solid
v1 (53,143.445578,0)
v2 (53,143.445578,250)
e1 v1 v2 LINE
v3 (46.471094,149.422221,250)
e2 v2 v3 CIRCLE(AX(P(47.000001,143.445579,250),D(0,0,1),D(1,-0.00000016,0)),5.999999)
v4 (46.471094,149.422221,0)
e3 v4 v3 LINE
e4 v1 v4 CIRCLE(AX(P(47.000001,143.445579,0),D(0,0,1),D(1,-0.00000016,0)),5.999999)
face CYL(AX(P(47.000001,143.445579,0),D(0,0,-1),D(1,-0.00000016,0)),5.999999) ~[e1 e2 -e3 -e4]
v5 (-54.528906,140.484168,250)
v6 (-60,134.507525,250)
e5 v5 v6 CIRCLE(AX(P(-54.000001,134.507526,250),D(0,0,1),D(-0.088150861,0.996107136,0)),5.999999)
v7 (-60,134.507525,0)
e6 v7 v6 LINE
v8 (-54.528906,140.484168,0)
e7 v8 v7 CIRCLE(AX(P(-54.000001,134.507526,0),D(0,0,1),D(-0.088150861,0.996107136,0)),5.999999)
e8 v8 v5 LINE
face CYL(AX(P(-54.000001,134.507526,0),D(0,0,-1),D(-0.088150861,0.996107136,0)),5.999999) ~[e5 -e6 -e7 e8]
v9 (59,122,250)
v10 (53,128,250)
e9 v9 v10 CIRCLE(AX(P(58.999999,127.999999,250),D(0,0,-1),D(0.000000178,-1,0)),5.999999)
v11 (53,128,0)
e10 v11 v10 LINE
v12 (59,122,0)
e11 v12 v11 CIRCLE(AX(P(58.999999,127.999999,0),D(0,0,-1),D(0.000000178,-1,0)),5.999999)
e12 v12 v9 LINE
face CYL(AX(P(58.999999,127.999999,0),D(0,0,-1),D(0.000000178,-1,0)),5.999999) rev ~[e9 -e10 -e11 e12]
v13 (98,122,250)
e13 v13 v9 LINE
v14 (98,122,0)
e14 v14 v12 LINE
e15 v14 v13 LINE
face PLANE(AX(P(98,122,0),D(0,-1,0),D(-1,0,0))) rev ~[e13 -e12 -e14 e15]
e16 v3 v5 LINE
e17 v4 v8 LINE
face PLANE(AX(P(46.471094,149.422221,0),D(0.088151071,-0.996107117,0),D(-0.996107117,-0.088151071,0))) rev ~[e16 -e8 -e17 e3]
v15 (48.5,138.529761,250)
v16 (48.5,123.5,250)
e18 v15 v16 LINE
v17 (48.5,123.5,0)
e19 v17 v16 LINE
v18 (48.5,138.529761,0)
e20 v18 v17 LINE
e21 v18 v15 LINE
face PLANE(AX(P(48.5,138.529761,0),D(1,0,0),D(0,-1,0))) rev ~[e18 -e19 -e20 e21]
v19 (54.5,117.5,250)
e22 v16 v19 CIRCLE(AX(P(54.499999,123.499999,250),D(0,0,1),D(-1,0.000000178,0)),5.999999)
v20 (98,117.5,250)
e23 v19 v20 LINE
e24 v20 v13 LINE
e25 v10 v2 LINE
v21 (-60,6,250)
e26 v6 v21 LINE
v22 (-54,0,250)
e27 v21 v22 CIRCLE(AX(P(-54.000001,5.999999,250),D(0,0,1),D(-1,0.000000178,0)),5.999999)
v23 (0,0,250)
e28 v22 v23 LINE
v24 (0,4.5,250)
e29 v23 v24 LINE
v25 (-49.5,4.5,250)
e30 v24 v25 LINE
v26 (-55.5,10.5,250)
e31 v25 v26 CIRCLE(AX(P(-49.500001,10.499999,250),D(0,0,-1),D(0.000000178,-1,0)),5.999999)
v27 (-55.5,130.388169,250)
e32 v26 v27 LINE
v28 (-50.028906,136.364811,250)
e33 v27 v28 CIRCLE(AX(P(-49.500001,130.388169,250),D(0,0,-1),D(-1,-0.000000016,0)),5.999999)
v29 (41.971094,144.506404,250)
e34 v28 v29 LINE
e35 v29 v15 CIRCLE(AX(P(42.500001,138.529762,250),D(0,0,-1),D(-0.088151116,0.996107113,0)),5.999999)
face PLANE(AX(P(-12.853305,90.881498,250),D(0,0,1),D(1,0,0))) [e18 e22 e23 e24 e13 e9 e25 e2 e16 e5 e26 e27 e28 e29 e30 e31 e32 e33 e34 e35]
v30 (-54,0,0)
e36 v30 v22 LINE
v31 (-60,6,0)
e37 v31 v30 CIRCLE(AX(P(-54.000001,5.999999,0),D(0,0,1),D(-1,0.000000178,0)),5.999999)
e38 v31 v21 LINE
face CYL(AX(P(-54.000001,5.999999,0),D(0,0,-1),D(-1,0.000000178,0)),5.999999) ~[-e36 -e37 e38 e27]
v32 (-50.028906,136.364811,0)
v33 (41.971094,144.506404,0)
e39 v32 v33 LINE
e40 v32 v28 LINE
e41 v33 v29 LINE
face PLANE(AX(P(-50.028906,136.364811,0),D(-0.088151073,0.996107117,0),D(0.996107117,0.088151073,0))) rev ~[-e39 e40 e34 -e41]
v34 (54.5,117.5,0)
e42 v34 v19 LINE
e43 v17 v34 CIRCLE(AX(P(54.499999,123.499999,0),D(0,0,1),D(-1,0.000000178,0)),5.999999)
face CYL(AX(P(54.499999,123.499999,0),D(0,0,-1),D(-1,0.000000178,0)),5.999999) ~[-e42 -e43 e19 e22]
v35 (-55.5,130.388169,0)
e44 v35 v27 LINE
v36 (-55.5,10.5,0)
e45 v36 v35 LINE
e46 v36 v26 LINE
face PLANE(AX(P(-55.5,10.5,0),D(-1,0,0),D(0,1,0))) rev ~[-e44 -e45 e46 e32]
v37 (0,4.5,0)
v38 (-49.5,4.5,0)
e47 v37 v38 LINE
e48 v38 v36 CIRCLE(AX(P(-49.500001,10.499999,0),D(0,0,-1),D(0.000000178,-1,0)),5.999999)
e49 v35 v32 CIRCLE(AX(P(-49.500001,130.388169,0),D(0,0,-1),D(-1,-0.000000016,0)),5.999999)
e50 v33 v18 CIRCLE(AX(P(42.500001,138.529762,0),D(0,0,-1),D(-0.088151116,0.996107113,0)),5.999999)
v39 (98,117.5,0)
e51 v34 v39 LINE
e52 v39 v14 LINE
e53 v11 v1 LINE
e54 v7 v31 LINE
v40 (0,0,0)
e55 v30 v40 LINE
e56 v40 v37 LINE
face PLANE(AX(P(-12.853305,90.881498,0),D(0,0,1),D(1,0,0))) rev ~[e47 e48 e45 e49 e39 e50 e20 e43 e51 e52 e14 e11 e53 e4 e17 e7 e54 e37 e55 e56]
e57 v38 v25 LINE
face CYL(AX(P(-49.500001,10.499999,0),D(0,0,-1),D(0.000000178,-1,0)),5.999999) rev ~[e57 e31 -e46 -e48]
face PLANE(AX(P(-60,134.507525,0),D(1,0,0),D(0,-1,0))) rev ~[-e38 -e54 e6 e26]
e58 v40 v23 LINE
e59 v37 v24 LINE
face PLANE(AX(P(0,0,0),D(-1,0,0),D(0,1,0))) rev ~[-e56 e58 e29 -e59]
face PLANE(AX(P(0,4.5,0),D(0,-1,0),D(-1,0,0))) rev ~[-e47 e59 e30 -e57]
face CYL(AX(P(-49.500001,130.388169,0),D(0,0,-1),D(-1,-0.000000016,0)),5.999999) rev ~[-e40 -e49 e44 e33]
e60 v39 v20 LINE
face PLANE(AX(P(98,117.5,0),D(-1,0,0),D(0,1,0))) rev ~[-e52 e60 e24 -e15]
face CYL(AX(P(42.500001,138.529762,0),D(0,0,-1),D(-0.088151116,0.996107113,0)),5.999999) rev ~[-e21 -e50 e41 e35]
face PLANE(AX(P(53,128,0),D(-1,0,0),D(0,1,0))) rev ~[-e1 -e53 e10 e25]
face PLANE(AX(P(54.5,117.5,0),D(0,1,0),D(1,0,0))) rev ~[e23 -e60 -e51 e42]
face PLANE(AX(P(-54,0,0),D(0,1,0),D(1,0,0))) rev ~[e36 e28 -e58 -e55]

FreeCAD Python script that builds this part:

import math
import FreeCAD as App
import Part
import Sketcher
Q = App.Units.Quantity

doc = App.newDocument("Part")
body = doc.addObject("PartDesign::Body", "Body")

# Sketch on XY plane
sketch1 = doc.addObject("Sketcher::SketchObject", "Sketch")
body.addObject(sketch1)
sketch1.AttachmentSupport = (doc.XY_Plane, [""])
sketch1.MapMode = "FlatFace"
sketch1.addGeometry(Part.LineSegment(App.Vector(-54, 0, 0), App.Vector(0, 0, 0)), False)
sketch1.addGeometry(Part.LineSegment(App.Vector(0, 0, 0), App.Vector(0, 4.5, 0)), False)
sketch1.addGeometry(Part.LineSegment(App.Vector(0, 4.5, 0), App.Vector(-49.5, 4.5, 0)), False)
sketch1.addGeometry(Part.ArcOfCircle(Part.Circle(App.Vector(-49.5, 10.5, 0), App.Vector(0, 0, 1), 6), math.radians(180), math.radians(270)), False)
sketch1.addGeometry(Part.LineSegment(App.Vector(-55.5, 10.5, 0), App.Vector(-55.5, 130.4, 0)), False)
sketch1.addGeometry(Part.ArcOfCircle(Part.Circle(App.Vector(-49.5, 130.4, 0), App.Vector(0, 0, 1), 6), math.radians(95), math.radians(180)), False)
sketch1.addGeometry(Part.LineSegment(App.Vector(-50, 136.4, 0), App.Vector(42, 144.5, 0)), False)
sketch1.addGeometry(Part.ArcOfCircle(Part.Circle(App.Vector(42.5, 138.5, 0), App.Vector(0, 0, 1), 6), math.radians(0), math.radians(95)), False)
sketch1.addGeometry(Part.LineSegment(App.Vector(48.5, 138.5, 0), App.Vector(48.5, 123.5, 0)), False)
sketch1.addGeometry(Part.ArcOfCircle(Part.Circle(App.Vector(54.5, 123.5, 0), App.Vector(0, 0, 1), 6), math.radians(180), math.radians(270)), False)
sketch1.addGeometry(Part.LineSegment(App.Vector(54.5, 117.5, 0), App.Vector(98, 117.5, 0)), False)
sketch1.addGeometry(Part.LineSegment(App.Vector(98, 117.5, 0), App.Vector(98, 122, 0)), False)
sketch1.addGeometry(Part.LineSegment(App.Vector(98, 122, 0), App.Vector(59, 122, 0)), False)
sketch1.addGeometry(Part.ArcOfCircle(Part.Circle(App.Vector(59, 128, 0), App.Vector(0, 0, 1), 6), math.radians(180), math.radians(270)), False)
sketch1.addGeometry(Part.LineSegment(App.Vector(53, 128, 0), App.Vector(53, 143.4, 0)), False)
sketch1.addGeometry(Part.ArcOfCircle(Part.Circle(App.Vector(47, 143.4, 0), App.Vector(0, 0, 1), 6), math.radians(0), math.radians(95)), False)
sketch1.addGeometry(Part.LineSegment(App.Vector(46.5, 149.4, 0), App.Vector(-54.5, 140.5, 0)), False)
sketch1.addGeometry(Part.ArcOfCircle(Part.Circle(App.Vector(-54, 134.5, 0), App.Vector(0, 0, 1), 6), math.radians(95), math.radians(180)), False)
sketch1.addGeometry(Part.LineSegment(App.Vector(-60, 134.5, 0), App.Vector(-60, 6, 0)), False)
sketch1.addGeometry(Part.ArcOfCircle(Part.Circle(App.Vector(-54, 6, 0), App.Vector(0, 0, 1), 6), math.radians(180), math.radians(270)), False)
sketch1.addConstraint(Sketcher.Constraint("Coincident", 0, 2, 1, 1))
sketch1.addConstraint(Sketcher.Constraint("Coincident", 1, 2, 2, 1))
sketch1.addConstraint(Sketcher.Constraint("Tangent", 2, 2, 3, 2))
sketch1.addConstraint(Sketcher.Constraint("Tangent", 3, 1, 4, 1))
sketch1.addConstraint(Sketcher.Constraint("Tangent", 4, 2, 5, 2))
sketch1.addConstraint(Sketcher.Constraint("Tangent", 5, 1, 6, 1))
sketch1.addConstraint(Sketcher.Constraint("Tangent", 6, 2, 7, 2))
sketch1.addConstraint(Sketcher.Constraint("Tangent", 7, 1, 8, 1))
sketch1.addConstraint(Sketcher.Constraint("Tangent", 8, 2, 9, 1))
sketch1.addConstraint(Sketcher.Constraint("Tangent", 9, 2, 10, 1))
sketch1.addConstraint(Sketcher.Constraint("Coincident", 10, 2, 11, 1))
sketch1.addConstraint(Sketcher.Constraint("Coincident", 11, 2, 12, 1))
sketch1.addConstraint(Sketcher.Constraint("Tangent", 12, 2, 13, 2))
sketch1.addConstraint(Sketcher.Constraint("Tangent", 13, 1, 14, 1))
sketch1.addConstraint(Sketcher.Constraint("Tangent", 14, 2, 15, 1))
sketch1.addConstraint(Sketcher.Constraint("Tangent", 15, 2, 16, 1))
sketch1.addConstraint(Sketcher.Constraint("Tangent", 16, 2, 17, 1))
sketch1.addConstraint(Sketcher.Constraint("Tangent", 17, 2, 18, 1))
sketch1.addConstraint(Sketcher.Constraint("Tangent", 18, 2, 19, 1))
sketch1.addConstraint(Sketcher.Constraint("Tangent", 19, 2, 0, 1))
sketch1.addConstraint(Sketcher.Constraint("Horizontal", 0))
sketch1.addConstraint(Sketcher.Constraint("Vertical", 1))
sketch1.addConstraint(Sketcher.Constraint("Horizontal", 2))
sketch1.addConstraint(Sketcher.Constraint("Vertical", 4))
sketch1.addConstraint(Sketcher.Constraint("Vertical", 8))
sketch1.addConstraint(Sketcher.Constraint("Horizontal", 10))
sketch1.addConstraint(Sketcher.Constraint("Vertical", 11))
sketch1.addConstraint(Sketcher.Constraint("Horizontal", 12))
sketch1.addConstraint(Sketcher.Constraint("Vertical", 14))
sketch1.addConstraint(Sketcher.Constraint("Vertical", 18))
sketch1.addConstraint(Sketcher.Constraint("Coincident", 0, 2, -1, 1))
sketch1.addConstraint(Sketcher.Constraint("Equal", 3, 5))
sketch1.addConstraint(Sketcher.Constraint("Equal", 5, 7))
sketch1.addConstraint(Sketcher.Constraint("Equal", 7, 9))
sketch1.addConstraint(Sketcher.Constraint("Equal", 9, 13))
sketch1.addConstraint(Sketcher.Constraint("Equal", 13, 15))
sketch1.addConstraint(Sketcher.Constraint("Equal", 15, 17))
sketch1.addConstraint(Sketcher.Constraint("Equal", 17, 19))
sketch1.addConstraint(Sketcher.Constraint("Parallel", 6, 16))
sketch1.addConstraint(Sketcher.Constraint("Equal", 1, 11))
sketch1.addConstraint(Sketcher.Constraint("Radius", 3, Q("5.999999 mm")))
sketch1.addConstraint(Sketcher.Constraint("DistanceX", 0, 1, 0, 2, Q("54 mm")))
sketch1.addConstraint(Sketcher.Constraint("DistanceX", 12, 2, 12, 1, Q("39 mm")))
sketch1.addConstraint(Sketcher.Constraint("DistanceX", 2, 2, 2, 1, Q("49.5 mm")))
sketch1.addConstraint(Sketcher.Constraint("DistanceX", 10, 1, 10, 2, Q("43.5 mm")))
sketch1.addConstraint(Sketcher.Constraint("DistanceY", 1, 1, 1, 2, Q("4.5 mm")))
sketch1.addConstraint(Sketcher.Constraint("DistanceX", -1, 1, 13, 3, Q("58.999999 mm")))
sketch1.addConstraint(Sketcher.Constraint("DistanceY", -1, 1, 13, 3, Q("127.999999 mm")))
sketch1.addConstraint(Sketcher.Constraint("DistanceY", 4, 2, 16, 2, Q("10.095999 mm")))
sketch1.addConstraint(Sketcher.Constraint("DistanceY", 4, 1, 4, 2, Q("119.888169 mm")))
sketch1.addConstraint(Sketcher.Constraint("DistanceY", 8, 2, 8, 1, Q("15.029761 mm")))
pad1 = doc.addObject("PartDesign::Pad", "Pad")
body.addObject(pad1)
pad1.Profile = sketch1
pad1.Length = 250

doc.recompute()
